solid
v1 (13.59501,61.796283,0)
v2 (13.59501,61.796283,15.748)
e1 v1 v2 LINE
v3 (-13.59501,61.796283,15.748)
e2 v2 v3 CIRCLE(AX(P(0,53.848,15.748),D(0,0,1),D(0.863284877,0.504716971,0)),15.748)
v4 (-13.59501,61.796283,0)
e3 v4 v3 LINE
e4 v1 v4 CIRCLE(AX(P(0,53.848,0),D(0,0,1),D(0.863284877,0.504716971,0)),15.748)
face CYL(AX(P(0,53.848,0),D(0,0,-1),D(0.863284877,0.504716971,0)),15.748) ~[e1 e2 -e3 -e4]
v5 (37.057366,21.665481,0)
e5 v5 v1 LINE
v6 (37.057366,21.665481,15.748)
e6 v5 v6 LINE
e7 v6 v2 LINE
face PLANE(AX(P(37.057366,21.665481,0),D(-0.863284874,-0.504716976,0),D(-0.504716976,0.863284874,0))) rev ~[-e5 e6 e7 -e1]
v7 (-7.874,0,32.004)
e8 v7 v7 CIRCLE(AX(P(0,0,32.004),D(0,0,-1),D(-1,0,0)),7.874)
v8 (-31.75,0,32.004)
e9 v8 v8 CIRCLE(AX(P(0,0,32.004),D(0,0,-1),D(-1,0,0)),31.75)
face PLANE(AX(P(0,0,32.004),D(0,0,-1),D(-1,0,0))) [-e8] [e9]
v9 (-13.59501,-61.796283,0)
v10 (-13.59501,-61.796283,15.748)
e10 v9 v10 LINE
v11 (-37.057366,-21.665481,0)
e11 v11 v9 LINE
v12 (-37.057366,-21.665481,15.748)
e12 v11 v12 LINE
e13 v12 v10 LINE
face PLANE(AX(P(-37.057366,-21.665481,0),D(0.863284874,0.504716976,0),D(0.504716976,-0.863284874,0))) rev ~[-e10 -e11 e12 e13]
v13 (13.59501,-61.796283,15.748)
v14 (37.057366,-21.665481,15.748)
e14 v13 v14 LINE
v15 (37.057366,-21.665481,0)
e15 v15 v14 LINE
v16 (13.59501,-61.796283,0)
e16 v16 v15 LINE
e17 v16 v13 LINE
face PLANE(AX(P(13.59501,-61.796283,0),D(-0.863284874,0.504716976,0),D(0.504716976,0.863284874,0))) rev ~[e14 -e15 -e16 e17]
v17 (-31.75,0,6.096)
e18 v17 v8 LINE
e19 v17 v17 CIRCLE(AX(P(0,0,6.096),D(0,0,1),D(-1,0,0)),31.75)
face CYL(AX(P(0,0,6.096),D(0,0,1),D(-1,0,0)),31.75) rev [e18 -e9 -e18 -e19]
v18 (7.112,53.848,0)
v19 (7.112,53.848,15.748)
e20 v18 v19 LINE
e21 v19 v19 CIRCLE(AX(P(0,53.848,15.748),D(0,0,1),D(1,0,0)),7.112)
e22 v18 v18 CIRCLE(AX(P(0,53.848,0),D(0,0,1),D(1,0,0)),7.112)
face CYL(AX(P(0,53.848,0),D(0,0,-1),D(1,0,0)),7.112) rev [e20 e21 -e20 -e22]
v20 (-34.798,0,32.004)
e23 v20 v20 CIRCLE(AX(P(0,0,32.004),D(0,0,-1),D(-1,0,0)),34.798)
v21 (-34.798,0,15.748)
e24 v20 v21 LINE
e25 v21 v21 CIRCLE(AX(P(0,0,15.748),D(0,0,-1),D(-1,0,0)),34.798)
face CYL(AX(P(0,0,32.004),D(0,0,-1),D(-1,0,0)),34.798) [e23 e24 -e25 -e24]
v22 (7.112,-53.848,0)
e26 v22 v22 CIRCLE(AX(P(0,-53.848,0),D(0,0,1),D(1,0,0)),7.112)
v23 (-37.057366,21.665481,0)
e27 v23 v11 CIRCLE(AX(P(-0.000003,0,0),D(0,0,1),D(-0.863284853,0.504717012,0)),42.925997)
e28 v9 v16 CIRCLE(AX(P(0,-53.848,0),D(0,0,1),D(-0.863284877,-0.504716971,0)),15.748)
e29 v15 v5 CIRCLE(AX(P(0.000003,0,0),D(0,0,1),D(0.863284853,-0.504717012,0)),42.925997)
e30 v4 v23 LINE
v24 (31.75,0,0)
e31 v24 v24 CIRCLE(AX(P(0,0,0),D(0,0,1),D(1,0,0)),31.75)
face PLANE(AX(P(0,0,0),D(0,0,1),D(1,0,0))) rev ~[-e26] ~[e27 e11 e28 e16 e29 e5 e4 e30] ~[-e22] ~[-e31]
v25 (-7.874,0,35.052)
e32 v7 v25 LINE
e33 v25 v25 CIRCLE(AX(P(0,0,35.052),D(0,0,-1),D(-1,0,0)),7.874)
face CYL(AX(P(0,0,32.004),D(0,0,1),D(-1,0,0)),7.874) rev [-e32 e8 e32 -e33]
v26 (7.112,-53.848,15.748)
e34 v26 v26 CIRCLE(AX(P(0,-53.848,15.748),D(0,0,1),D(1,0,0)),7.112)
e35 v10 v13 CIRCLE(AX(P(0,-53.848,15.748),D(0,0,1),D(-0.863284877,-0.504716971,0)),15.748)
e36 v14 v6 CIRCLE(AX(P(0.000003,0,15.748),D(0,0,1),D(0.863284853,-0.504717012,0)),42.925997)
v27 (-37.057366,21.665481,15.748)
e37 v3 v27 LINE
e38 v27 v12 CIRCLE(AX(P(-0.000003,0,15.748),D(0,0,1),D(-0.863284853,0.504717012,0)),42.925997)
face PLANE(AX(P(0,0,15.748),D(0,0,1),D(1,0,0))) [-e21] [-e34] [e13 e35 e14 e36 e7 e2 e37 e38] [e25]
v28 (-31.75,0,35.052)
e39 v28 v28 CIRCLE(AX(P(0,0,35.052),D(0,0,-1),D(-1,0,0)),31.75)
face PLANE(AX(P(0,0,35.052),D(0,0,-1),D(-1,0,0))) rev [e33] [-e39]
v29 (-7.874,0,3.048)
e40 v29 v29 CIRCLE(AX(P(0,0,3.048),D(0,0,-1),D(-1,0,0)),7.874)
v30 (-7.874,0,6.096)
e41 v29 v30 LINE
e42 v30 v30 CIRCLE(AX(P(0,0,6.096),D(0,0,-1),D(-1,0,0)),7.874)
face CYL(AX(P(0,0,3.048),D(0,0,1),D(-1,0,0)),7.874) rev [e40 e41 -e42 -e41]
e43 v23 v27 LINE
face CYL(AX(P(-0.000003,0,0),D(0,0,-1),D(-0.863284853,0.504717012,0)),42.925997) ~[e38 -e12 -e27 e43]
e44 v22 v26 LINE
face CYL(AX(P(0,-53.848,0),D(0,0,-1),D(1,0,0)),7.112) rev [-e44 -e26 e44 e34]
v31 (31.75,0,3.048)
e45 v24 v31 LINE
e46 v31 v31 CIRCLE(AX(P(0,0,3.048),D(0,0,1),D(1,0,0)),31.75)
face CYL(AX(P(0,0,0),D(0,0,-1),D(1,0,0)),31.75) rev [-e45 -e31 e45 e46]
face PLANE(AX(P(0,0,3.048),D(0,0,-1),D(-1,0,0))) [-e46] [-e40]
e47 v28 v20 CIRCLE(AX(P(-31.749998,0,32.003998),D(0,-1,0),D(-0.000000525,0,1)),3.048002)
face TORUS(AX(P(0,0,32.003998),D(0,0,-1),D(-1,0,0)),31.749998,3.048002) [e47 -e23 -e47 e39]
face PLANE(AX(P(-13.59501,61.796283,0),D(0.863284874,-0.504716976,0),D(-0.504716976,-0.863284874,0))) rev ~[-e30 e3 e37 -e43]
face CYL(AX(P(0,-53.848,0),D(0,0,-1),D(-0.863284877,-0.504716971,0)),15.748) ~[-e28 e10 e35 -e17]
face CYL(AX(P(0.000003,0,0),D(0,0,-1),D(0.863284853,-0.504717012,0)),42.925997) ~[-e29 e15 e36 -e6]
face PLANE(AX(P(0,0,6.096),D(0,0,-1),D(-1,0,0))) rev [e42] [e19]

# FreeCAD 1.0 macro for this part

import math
import FreeCAD as App
import Part
import Sketcher
Q = App.Units.Quantity

doc = App.newDocument("Part")
params = doc.addObject("Spreadsheet::Sheet", "Params")
for row, (alias, value) in enumerate([
    ("sketch1_radius", "0.1200001 in"),
    ("sketch1_width", "0.94 in"),
    ("sketch1_height", "1.02 in"),
    ("revolution_angle", "360 deg"),
    ("sketch2_diameter", "2.5 in"),
    ("sketch2_diameter2", "0.56 in"),
    ("sketch2_radius", "0.62 in"),
    ("sketch2_radius2", "1.6899999 in"),
    ("pad1_length", "0.62 in"),
], start=1):
    params.set(f"A{row}", alias)
    params.set(f"B{row}", "=" + value)
    params.setAlias(f"B{row}", alias)

body = doc.addObject("PartDesign::Body", "Body")

sketch1 = body.newObject("Sketcher::SketchObject", "Sketch")
sketch1.AttachmentSupport = (doc.getObject("XZ_Plane"), [""])
sketch1.MapMode = "FlatFace"
sketch1.addGeometry(Part.LineSegment(App.Vector(-7.874, 32.004, 0), App.Vector(-7.874, 35.052, 0)), False)
sketch1.addGeometry(Part.LineSegment(App.Vector(-7.874, 35.052, 0), App.Vector(-31.75, 35.052, 0)), False)
sketch1.addGeometry(Part.ArcOfCircle(Part.Circle(App.Vector(-31.749998, 32.003998, 0), App.Vector(0, 0, 1), 3.048002), math.radians(90.00003), math.radians(179.99997)), False)
sketch1.addGeometry(Part.LineSegment(App.Vector(-34.798, 32.004, 0), App.Vector(-34.798, 6.096, 0)), False)
sketch1.addGeometry(Part.ArcOfCircle(Part.Circle(App.Vector(-31.749998, 6.096002, 0), App.Vector(0, 0, 1), 3.048002), math.radians(-179.99997), math.radians(-90.00003)), False)
sketch1.addGeometry(Part.LineSegment(App.Vector(-31.75, 3.048, 0), App.Vector(-7.874, 3.048, 0)), False)
sketch1.addGeometry(Part.LineSegment(App.Vector(-7.874, 3.048, 0), App.Vector(-7.874, 6.096, 0)), False)
sketch1.addGeometry(Part.LineSegment(App.Vector(-7.874, 6.096, 0), App.Vector(-31.75, 6.096, 0)), False)
sketch1.addGeometry(Part.LineSegment(App.Vector(-31.75, 6.096, 0), App.Vector(-31.75, 32.004, 0)), False)
sketch1.addGeometry(Part.LineSegment(App.Vector(-31.75, 32.004, 0), App.Vector(-7.874, 32.004, 0)), False)
sketch1.addConstraint(Sketcher.Constraint("Coincident", 0, 2, 1, 1))
sketch1.addConstraint(Sketcher.Constraint("Tangent", 1, 2, 2, 1))
sketch1.addConstraint(Sketcher.Constraint("Tangent", 2, 2, 3, 1))
sketch1.addConstraint(Sketcher.Constraint("Tangent", 3, 2, 4, 1))
sketch1.addConstraint(Sketcher.Constraint("Tangent", 4, 2, 5, 1))
sketch1.addConstraint(Sketcher.Constraint("Coincident", 5, 2, 6, 1))
sketch1.addConstraint(Sketcher.Constraint("Coincident", 6, 2, 7, 1))
sketch1.addConstraint(Sketcher.Constraint("Coincident", 7, 2, 8, 1))
sketch1.addConstraint(Sketcher.Constraint("Coincident", 8, 2, 9, 1))
sketch1.addConstraint(Sketcher.Constraint("Coincident", 9, 2, 0, 1))
sketch1.addConstraint(Sketcher.Constraint("Vertical", 0))
sketch1.addConstraint(Sketcher.Constraint("Horizontal", 1))
sketch1.addConstraint(Sketcher.Constraint("Vertical", 3))
sketch1.addConstraint(Sketcher.Constraint("Horizontal", 5))
sketch1.addConstraint(Sketcher.Constraint("Vertical", 6))
sketch1.addConstraint(Sketcher.Constraint("Horizontal", 7))
sketch1.addConstraint(Sketcher.Constraint("Vertical", 8))
sketch1.addConstraint(Sketcher.Constraint("Horizontal", 9))
sketch1.addConstraint(Sketcher.Constraint("Coincident", 7, 2, 4, 3))
sketch1.addConstraint(Sketcher.Constraint("Coincident", 8, 2, 2, 3))
sketch1.addConstraint(Sketcher.Constraint("Vertical", 0, 2, 5, 2))
sketch1.addConstraint(Sketcher.Constraint("Radius", 2, Q("0.1200001 in")))
sketch1.addConstraint(Sketcher.Constraint("DistanceX", 1, 2, 1, 1, Q("0.94 in")))
sketch1.addConstraint(Sketcher.Constraint("DistanceY", 3, 2, 3, 1, Q("1.02 in")))
sketch1.addConstraint(Sketcher.Constraint("DistanceX", 2, 3, -1, 1, Q("1.2499999 in")))
sketch1.addConstraint(Sketcher.Constraint("DistanceY", -1, 1, 2, 3, Q("1.2599999 in")))
sketch1.setExpression("Constraints[21]", "Params.sketch1_radius")
sketch1.setExpression("Constraints[22]", "Params.sketch1_width")
sketch1.setExpression("Constraints[23]", "Params.sketch1_height")
revolution = body.newObject("PartDesign::Revolution", "Revolution")
revolution.Profile = sketch1
revolution.ReferenceAxis = (sketch1, ["V_Axis"])
revolution.setExpression("Angle", "Params.revolution_angle")

sketch2 = body.newObject("Sketcher::SketchObject", "Sketch001")
sketch2.AttachmentSupport = (doc.getObject("XY_Plane"), [""])
sketch2.MapMode = "FlatFace"
sketch2.addGeometry(Part.LineSegment(App.Vector(-37.057366, -21.665481, 0), App.Vector(-13.59501, -61.796283, 0)), False)
sketch2.addGeometry(Part.ArcOfCircle(Part.Circle(App.Vector(0, -53.848, 0), App.Vector(0, 0, 1), 15.748), math.radians(-149.687434), math.radians(-30.312566)), False)
sketch2.addGeometry(Part.LineSegment(App.Vector(13.59501, -61.796283, 0), App.Vector(37.057366, -21.665481, 0)), False)
sketch2.addGeometry(Part.ArcOfCircle(Part.Circle(App.Vector(0.000003, 0, 0), App.Vector(0, 0, 1), 42.925997), math.radians(-30.312569), math.radians(30.312569)), False)
sketch2.addGeometry(Part.LineSegment(App.Vector(37.057366, 21.665481, 0), App.Vector(13.59501, 61.796283, 0)), False)
sketch2.addGeometry(Part.ArcOfCircle(Part.Circle(App.Vector(0, 53.848, 0), App.Vector(0, 0, 1), 15.748), math.radians(30.312566), math.radians(149.687434)), False)
sketch2.addGeometry(Part.LineSegment(App.Vector(-13.59501, 61.796283, 0), App.Vector(-37.057366, 21.665481, 0)), False)
sketch2.addGeometry(Part.ArcOfCircle(Part.Circle(App.Vector(-0.000003, 0, 0), App.Vector(0, 0, 1), 42.925997), math.radians(149.687431), math.radians(210.312569)), False)
sketch2.addGeometry(Part.Circle(App.Vector(0, -53.848, 0), App.Vector(0, 0, 1), 7.112), False)
sketch2.addGeometry(Part.Circle(App.Vector(0, 0, 0), App.Vector(0, 0, 1), 31.75), False)
sketch2.addGeometry(Part.Circle(App.Vector(0, 53.848, 0), App.Vector(0, 0, 1), 7.112), False)
sketch2.addConstraint(Sketcher.Constraint("Tangent", 0, 2, 1, 1))
sketch2.addConstraint(Sketcher.Constraint("Tangent", 1, 2, 2, 1))
sketch2.addConstraint(Sketcher.Constraint("Tangent", 2, 2, 3, 1))
sketch2.addConstraint(Sketcher.Constraint("Tangent", 3, 2, 4, 1))
sketch2.addConstraint(Sketcher.Constraint("Tangent", 4, 2, 5, 1))
sketch2.addConstraint(Sketcher.Constraint("Tangent", 5, 2, 6, 1))
sketch2.addConstraint(Sketcher.Constraint("Tangent", 6, 2, 7, 1))
sketch2.addConstraint(Sketcher.Constraint("Tangent", 7, 2, 0, 1))
sketch2.addConstraint(Sketcher.Constraint("Coincident", 3, 3, -1, 1))
sketch2.addConstraint(Sketcher.Constraint("Coincident", 7, 3, -1, 1))
sketch2.addConstraint(Sketcher.Constraint("Coincident", 9, 3, -1, 1))
sketch2.addConstraint(Sketcher.Constraint("Coincident", 8, 3, 1, 3))
sketch2.addConstraint(Sketcher.Constraint("Coincident", 10, 3, 5, 3))
sketch2.addConstraint(Sketcher.Constraint("Equal", 1, 5))
sketch2.addConstraint(Sketcher.Constraint("Equal", 3, 7))
sketch2.addConstraint(Sketcher.Constraint("Equal", 8, 10))
sketch2.addConstraint(Sketcher.Constraint("Symmetric", 1, 3, 5, 3, -1, 1))
sketch2.addConstraint(Sketcher.Constraint("PointOnObject", 1, 3, -2))
sketch2.addConstraint(Sketcher.Constraint("Diameter", 9, Q("2.5 in")))
sketch2.addConstraint(Sketcher.Constraint("Diameter", 8, Q("0.56 in")))
sketch2.addConstraint(Sketcher.Constraint("Radius", 1, Q("0.62 in")))
sketch2.addConstraint(Sketcher.Constraint("Radius", 3, Q("1.6899999 in")))
sketch2.addConstraint(Sketcher.Constraint("DistanceY", 1, 3, -1, 1, Q("2.12 in")))
sketch2.setExpression("Constraints[18]", "Params.sketch2_diameter")
sketch2.setExpression("Constraints[19]", "Params.sketch2_diameter2")
sketch2.setExpression("Constraints[20]", "Params.sketch2_radius")
sketch2.setExpression("Constraints[21]", "Params.sketch2_radius2")
pad1 = body.newObject("PartDesign::Pad", "Pad")
pad1.Profile = sketch2
pad1.setExpression("Length", "Params.pad1_length")

doc.recompute()
